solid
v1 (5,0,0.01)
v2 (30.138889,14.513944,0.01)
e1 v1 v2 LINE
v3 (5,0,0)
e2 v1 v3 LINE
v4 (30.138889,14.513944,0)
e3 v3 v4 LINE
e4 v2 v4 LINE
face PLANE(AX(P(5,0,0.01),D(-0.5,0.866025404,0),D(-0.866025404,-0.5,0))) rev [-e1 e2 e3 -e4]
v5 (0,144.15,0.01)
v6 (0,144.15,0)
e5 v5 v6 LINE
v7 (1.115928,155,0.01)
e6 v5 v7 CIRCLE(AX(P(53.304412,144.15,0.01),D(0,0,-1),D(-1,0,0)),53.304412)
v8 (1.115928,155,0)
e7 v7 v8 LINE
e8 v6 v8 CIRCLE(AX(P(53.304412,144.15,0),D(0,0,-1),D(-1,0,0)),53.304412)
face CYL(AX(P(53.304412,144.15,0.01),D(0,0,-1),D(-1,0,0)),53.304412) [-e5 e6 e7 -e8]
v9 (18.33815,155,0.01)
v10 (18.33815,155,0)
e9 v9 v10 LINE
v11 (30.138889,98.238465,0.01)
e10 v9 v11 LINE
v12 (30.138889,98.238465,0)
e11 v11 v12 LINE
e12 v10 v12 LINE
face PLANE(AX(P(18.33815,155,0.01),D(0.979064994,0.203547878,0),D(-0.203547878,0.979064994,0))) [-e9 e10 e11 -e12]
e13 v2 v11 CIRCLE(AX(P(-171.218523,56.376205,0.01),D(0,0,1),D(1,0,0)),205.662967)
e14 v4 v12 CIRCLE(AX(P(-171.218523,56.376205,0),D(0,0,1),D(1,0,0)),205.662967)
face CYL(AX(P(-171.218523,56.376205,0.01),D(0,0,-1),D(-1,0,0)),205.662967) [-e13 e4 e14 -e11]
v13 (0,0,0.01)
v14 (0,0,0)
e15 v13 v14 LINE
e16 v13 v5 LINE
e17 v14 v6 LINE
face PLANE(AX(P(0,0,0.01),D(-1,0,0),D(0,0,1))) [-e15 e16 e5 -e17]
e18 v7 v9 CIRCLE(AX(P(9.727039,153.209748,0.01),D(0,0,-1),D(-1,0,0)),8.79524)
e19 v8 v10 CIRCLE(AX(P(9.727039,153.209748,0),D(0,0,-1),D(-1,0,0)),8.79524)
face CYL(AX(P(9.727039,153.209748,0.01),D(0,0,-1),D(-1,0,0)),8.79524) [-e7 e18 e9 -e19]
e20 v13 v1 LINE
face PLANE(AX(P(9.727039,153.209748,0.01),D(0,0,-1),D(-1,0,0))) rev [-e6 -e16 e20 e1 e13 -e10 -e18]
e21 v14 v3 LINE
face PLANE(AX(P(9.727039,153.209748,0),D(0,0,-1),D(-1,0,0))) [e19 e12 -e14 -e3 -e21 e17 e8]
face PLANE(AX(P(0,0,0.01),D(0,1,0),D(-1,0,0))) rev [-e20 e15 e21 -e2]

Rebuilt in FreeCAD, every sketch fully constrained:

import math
import FreeCAD as App
import Part
import Sketcher
Q = App.Units.Quantity

doc = App.newDocument("Part")
body = doc.addObject("PartDesign::Body", "Body")

sketch1 = doc.addObject("Sketcher::SketchObject", "Sketch")
body.addObject(sketch1)
sketch1.AttachmentSupport = (doc.XY_Plane, [""])
sketch1.MapMode = "FlatFace"
sketch1.addGeometry(Part.LineSegment(App.Vector(0, 144, 0), App.Vector(0, 0, 0)), False)
sketch1.addGeometry(Part.LineSegment(App.Vector(0, 0, 0), App.Vector(5, 0, 0)), False)
sketch1.addGeometry(Part.LineSegment(App.Vector(5, 0, 0), App.Vector(30, 15, 0)), False)
sketch1.addGeometry(Part.ArcOfCircle(Part.Circle(App.Vector(-171, 56, 0), App.Vector(0, 0, 1), 206), math.radians(-12), math.radians(12)), False)
sketch1.addGeometry(Part.LineSegment(App.Vector(30, 98, 0), App.Vector(18, 155, 0)), False)
sketch1.addGeometry(Part.ArcOfCircle(Part.Circle(App.Vector(10, 153, 0), App.Vector(0, 0, 1), 9), math.radians(12), math.radians(168)), False)
sketch1.addGeometry(Part.ArcOfCircle(Part.Circle(App.Vector(53, 144, 0), App.Vector(0, 0, 1), 53), math.radians(168.26), math.radians(180)), False)
sketch1.addConstraint(Sketcher.Constraint("Coincident", 0, 2, 1, 1))
sketch1.addConstraint(Sketcher.Constraint("Coincident", 1, 2, 2, 1))
sketch1.addConstraint(Sketcher.Constraint("Coincident", 2, 2, 3, 1))
sketch1.addConstraint(Sketcher.Constraint("Tangent", 3, 2, 4, 1))
sketch1.addConstraint(Sketcher.Constraint("Tangent", 4, 2, 5, 1))
sketch1.addConstraint(Sketcher.Constraint("Tangent", 5, 2, 6, 1))
sketch1.addConstraint(Sketcher.Constraint("Tangent", 6, 2, 0, 1))
sketch1.addConstraint(Sketcher.Constraint("Vertical", 0))
sketch1.addConstraint(Sketcher.Constraint("Horizontal", 1))
sketch1.addConstraint(Sketcher.Constraint("Coincident", 0, 2, -1, 1))
sketch1.addConstraint(Sketcher.Constraint("Horizontal", 4, 2, 5, 2))
sketch1.addConstraint(Sketcher.Constraint("Vertical", 2, 2, 3, 2))
sketch1.addConstraint(Sketcher.Constraint("DistanceX", 1, 1, 1, 2, 5.0))
sketch1.addConstraint(Sketcher.Constraint("Angle", 2, Q("30 deg")))
sketch1.addConstraint(Sketcher.Constraint("DistanceY", -1, 1, 4, 2, 155.0))
sketch1.addConstraint(Sketcher.Constraint("DistanceY", 0, 2, 0, 1, 144.15))
sketch1.addConstraint(Sketcher.Constraint("Radius", 5, 8.79524))
sketch1.addConstraint(Sketcher.Constraint("Radius", 3, 205.662968))
sketch1.addConstraint(Sketcher.Constraint("Radius", 6, 53.304412))
pad1 = doc.addObject("PartDesign::Pad", "Pad")
body.addObject(pad1)
pad1.Profile = sketch1
pad1.Length = 0.01

doc.recompute()
